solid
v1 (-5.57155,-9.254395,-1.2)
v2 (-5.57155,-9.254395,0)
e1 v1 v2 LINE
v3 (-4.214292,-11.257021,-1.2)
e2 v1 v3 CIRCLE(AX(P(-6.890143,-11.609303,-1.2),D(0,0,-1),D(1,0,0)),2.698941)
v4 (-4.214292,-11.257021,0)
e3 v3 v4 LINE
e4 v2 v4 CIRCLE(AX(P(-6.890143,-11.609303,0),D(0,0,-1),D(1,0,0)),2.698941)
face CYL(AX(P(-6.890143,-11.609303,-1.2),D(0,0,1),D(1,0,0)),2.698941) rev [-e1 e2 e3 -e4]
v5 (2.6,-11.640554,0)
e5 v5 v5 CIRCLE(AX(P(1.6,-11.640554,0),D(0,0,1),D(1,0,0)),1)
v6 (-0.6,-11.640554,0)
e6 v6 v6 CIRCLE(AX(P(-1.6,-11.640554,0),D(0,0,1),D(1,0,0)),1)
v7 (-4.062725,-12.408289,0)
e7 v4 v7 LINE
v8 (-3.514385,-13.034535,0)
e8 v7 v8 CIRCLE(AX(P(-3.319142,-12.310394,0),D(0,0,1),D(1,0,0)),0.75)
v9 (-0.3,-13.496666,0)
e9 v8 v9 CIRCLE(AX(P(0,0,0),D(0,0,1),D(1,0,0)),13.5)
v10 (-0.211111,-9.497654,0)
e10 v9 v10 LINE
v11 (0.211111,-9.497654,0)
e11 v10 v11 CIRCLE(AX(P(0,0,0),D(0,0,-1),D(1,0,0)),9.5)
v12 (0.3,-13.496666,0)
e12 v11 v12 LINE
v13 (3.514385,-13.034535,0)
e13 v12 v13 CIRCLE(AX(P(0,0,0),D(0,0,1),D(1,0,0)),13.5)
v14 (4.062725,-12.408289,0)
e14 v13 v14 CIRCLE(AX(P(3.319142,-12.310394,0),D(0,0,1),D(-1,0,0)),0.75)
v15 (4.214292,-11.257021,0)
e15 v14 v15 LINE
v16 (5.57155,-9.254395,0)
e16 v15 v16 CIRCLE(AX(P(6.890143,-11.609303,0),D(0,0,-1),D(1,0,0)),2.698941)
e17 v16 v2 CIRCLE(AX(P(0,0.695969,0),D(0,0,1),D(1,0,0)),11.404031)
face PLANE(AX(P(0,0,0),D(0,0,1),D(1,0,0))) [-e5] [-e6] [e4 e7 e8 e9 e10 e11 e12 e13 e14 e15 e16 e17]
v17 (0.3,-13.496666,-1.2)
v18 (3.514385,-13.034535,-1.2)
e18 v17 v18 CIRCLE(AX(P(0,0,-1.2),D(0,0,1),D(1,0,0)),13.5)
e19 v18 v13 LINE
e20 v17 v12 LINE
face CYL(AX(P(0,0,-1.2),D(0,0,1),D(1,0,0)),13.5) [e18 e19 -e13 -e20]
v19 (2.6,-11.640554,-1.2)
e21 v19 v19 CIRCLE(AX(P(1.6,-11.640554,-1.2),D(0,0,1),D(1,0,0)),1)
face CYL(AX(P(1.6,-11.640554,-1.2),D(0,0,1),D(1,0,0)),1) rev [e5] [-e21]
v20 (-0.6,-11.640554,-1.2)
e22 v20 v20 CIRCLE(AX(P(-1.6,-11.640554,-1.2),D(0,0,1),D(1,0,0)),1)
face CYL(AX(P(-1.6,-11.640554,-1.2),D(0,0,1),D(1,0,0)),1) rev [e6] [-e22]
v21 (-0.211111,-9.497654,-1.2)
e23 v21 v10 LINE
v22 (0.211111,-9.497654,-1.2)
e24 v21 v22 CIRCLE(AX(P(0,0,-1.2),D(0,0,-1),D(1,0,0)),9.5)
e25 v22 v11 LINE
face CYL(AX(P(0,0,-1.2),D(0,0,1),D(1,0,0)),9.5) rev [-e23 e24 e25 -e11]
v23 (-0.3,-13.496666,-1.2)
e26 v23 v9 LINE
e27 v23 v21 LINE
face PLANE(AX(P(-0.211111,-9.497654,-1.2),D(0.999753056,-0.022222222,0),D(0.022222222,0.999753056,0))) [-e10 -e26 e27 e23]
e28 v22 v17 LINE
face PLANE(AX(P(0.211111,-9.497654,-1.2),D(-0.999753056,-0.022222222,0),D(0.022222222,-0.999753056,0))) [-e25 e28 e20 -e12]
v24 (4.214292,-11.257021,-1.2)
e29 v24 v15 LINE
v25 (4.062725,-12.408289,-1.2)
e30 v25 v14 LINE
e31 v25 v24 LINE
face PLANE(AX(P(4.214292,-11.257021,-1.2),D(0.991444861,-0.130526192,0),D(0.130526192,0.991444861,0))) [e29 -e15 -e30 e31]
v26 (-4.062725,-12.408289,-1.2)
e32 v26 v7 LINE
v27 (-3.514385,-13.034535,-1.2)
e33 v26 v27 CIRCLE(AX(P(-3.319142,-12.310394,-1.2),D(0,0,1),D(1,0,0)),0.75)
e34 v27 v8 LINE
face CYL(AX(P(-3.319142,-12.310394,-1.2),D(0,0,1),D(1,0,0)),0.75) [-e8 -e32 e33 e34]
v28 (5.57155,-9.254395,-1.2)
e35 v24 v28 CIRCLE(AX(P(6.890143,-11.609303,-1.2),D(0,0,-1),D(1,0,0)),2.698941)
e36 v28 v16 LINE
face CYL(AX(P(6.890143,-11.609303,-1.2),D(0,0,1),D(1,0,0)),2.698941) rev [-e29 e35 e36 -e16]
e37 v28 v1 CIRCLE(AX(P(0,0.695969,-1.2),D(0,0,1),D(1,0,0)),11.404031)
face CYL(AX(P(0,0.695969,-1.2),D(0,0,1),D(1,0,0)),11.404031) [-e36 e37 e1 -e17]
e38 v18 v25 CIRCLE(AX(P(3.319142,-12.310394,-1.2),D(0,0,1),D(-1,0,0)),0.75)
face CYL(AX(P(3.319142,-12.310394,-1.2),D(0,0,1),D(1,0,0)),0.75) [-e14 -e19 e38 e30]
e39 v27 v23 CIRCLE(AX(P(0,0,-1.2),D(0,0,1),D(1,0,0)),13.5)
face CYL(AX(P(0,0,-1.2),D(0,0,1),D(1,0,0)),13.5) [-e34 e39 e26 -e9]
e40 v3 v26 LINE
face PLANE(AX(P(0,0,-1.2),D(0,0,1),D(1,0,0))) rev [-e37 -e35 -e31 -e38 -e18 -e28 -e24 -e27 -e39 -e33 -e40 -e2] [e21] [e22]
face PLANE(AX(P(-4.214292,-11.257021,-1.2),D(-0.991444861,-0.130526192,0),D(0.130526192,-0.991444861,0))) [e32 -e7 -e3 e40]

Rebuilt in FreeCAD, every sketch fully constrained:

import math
import FreeCAD as App
import Part
import Sketcher
from FreeCAD import Vector
Q = App.Units.Quantity

doc = App.newDocument("Part")
body = doc.addObject("PartDesign::Body", "Body")

# Sketch on XY plane
sketch1 = body.newObject("Sketcher::SketchObject", "Sketch")
sketch1.AttachmentSupport = (doc.getObject("XY_Plane"), [""])
sketch1.MapMode = "FlatFace"
sketch1.addGeometry([
    Part.LineSegment(Vector(0.21, -9.5, 0), Vector(0.3, -13.5, 0)),  # 0
    Part.ArcOfCircle(Part.Circle(Vector(0, 0, 0), Vector(0, 0, 1), 13.5), math.radians(-88.73), math.radians(-74.91)),  # 1
    Part.ArcOfCircle(Part.Circle(Vector(3.32, -12.31, 0), Vector(0, 0, 1), 0.75), math.radians(-75), math.radians(-7)),  # 2
    Part.LineSegment(Vector(4.06, -12.41, 0), Vector(4.21, -11.26, 0)),  # 3
    Part.ArcOfCircle(Part.Circle(Vector(6.89, -11.61, 0), Vector(0, 0, 1), 2.7), math.radians(119), math.radians(172)),  # 4
    Part.ArcOfCircle(Part.Circle(Vector(0, 0.7, 0), Vector(0, 0, 1), 11.4), math.radians(-61), math.radians(241)),  # 5
    Part.ArcOfCircle(Part.Circle(Vector(-6.89, -11.61, 0), Vector(0, 0, 1), 2.7), math.radians(8), math.radians(61)),  # 6
    Part.LineSegment(Vector(-4.21, -11.26, 0), Vector(-4.06, -12.41, 0)),  # 7
    Part.ArcOfCircle(Part.Circle(Vector(-3.32, -12.31, 0), Vector(0, 0, 1), 0.75), math.radians(-173), math.radians(-105)),  # 8
    Part.ArcOfCircle(Part.Circle(Vector(0, 0, 0), Vector(0, 0, 1), 13.5), math.radians(-105.09), math.radians(-91.27)),  # 9
    Part.LineSegment(Vector(-0.3, -13.5, 0), Vector(-0.21, -9.5, 0)),  # 10
    Part.ArcOfCircle(Part.Circle(Vector(0, 0, 0), Vector(0, 0, 1), 9.5), math.radians(-89), math.radians(269)),  # 11
    Part.Circle(Vector(-1.6, -11.64, 0), Vector(0, 0, 1), 1),  # 12
    Part.Circle(Vector(1.6, -11.64, 0), Vector(0, 0, 1), 1),  # 13
], False)
sketch1.addConstraint([
    Sketcher.Constraint("Coincident", 0, 2, 1, 1),
    Sketcher.Constraint("Tangent", 1, 2, 2, 1),
    Sketcher.Constraint("Tangent", 2, 2, 3, 1),
    Sketcher.Constraint("Tangent", 3, 2, 4, 2),
    Sketcher.Constraint("Tangent", 4, 1, 5, 1),
    Sketcher.Constraint("Tangent", 5, 2, 6, 2),
    Sketcher.Constraint("Tangent", 6, 1, 7, 1),
    Sketcher.Constraint("Tangent", 7, 2, 8, 1),
    Sketcher.Constraint("Tangent", 8, 2, 9, 1),
    Sketcher.Constraint("Coincident", 9, 2, 10, 1),
    Sketcher.Constraint("Coincident", 10, 2, 11, 2),
    Sketcher.Constraint("Coincident", 11, 1, 0, 1),
    Sketcher.Constraint("Coincident", 1, 3, -1, 1),
    Sketcher.Constraint("Coincident", 9, 3, -1, 1),
    Sketcher.Constraint("Coincident", 11, 3, -1, 1),
    Sketcher.Constraint("Equal", 4, 6),
    Sketcher.Constraint("Equal", 2, 8),
    Sketcher.Constraint("Equal", 1, 9),
    Sketcher.Constraint("Equal", 12, 13),
    Sketcher.Constraint("Symmetric", 4, 3, 6, 3, -2),
    Sketcher.Constraint("Symmetric", 12, 3, 13, 3, -2),
    Sketcher.Constraint("Horizontal", 2, 3, 8, 3),
    Sketcher.Constraint("Horizontal", 0, 2, 9, 2),
    Sketcher.Constraint("Horizontal", 10, 2, 11, 1),
    Sketcher.Constraint("Diameter", 12, Q("2 mm")),
    Sketcher.Constraint("Radius", 1, Q("13.5 mm")),
    Sketcher.Constraint("Radius", 11, Q("9.5 mm")),
    Sketcher.Constraint("Radius", 2, Q("0.75 mm")),
    Sketcher.Constraint("Angle", 3, Q("82.5 deg")),
    Sketcher.Constraint("DistanceX", 12, 3, -1, 1, Q("1.6 mm")),
    Sketcher.Constraint("DistanceX", -1, 1, 0, 2, Q("0.3 mm")),
    Sketcher.Constraint("Radius", 4, Q("2.698941 mm")),
    Sketcher.Constraint("Radius", 5, Q("11.404031 mm")),
    Sketcher.Constraint("DistanceX", 2, 3, 4, 3, Q("3.571002 mm")),
    Sketcher.Constraint("DistanceY", 2, 3, 4, 1, Q("3.055999 mm")),
    Sketcher.Constraint("DistanceY", 12, 3, 10, 2, Q("2.1429 mm")),
    Sketcher.Constraint("DistanceX", 10, 2, -1, 1, Q("0.211111 mm")),
])
pad1 = body.newObject("PartDesign::Pad", "Pad")
pad1.Profile = sketch1
pad1.Length = 1.2
pad1.Reversed = True

doc.recompute()
